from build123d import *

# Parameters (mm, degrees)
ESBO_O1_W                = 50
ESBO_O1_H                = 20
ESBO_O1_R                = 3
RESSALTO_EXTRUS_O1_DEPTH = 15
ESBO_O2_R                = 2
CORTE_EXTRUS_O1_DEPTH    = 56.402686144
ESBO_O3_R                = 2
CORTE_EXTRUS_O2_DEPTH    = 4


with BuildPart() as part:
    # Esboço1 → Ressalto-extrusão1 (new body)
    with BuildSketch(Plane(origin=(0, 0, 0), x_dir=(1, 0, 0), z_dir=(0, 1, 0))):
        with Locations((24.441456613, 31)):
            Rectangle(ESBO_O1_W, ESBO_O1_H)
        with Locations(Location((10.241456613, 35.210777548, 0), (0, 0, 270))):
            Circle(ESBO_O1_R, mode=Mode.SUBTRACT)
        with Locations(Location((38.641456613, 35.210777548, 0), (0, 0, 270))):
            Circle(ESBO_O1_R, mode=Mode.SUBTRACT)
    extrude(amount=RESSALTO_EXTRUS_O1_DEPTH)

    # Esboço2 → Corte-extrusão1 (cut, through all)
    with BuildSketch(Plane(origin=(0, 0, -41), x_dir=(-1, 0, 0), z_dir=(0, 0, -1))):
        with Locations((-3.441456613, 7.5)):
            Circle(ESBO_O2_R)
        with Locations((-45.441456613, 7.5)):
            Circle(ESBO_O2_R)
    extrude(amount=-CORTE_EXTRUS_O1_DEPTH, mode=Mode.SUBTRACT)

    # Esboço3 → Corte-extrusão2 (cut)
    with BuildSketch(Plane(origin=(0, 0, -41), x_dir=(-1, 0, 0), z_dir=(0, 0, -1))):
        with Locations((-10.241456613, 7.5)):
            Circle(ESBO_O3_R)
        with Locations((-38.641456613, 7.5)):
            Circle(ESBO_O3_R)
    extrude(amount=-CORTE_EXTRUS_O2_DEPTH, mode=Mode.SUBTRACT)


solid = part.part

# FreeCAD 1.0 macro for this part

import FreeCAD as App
import Part
import Sketcher


def add_polygon(sketch, points):
    """Adds a closed chain of lines whose ends are joined by coincident constraints."""
    first, n = sketch.GeometryCount, len(points)
    for a, b in zip(points, points[1:] + points[:1]):
        sketch.addGeometry(Part.LineSegment(App.Vector(*a, 0), App.Vector(*b, 0)), False)
    for i in range(n):
        sketch.addConstraint(Sketcher.Constraint("Coincident", first + i, 2, first + (i + 1) % n, 1))

doc = App.newDocument("Part")
params = doc.addObject("Spreadsheet::Sheet", "Params")
for row, (alias, value) in enumerate([
    ("sketch1_diameter", "6 mm"),
    ("sketch1_width", "50 mm"),
    ("sketch1_height", "20 mm"),
    ("pad1_length", "15 mm"),
    ("sketch2_diameter", "4 mm"),
    ("sketch3_diameter", "4 mm"),
    ("pocket2_length", "4 mm"),
], start=1):
    params.set(f"A{row}", alias)
    params.set(f"B{row}", "=" + value)
    params.setAlias(f"B{row}", alias)

body = doc.addObject("PartDesign::Body", "Body")

# Sketch on XZ plane
sketch1 = body.newObject("Sketcher::SketchObject", "Sketch")
sketch1.AttachmentSupport = (doc.getObject("XZ_Plane"), [""])
sketch1.MapMode = "FlatFace"
add_polygon(sketch1, [(-0.6, -41), (-0.6, -21), (49.4, -21), (49.4, -41)])  # lines 0-3
sketch1.addGeometry(Part.Circle(App.Vector(10.2, -35.2, 0), App.Vector(0, 0, 1), 3), False)  # 4
sketch1.addGeometry(Part.Circle(App.Vector(38.6, -35.2, 0), App.Vector(0, 0, 1), 3), False)  # 5
sketch1.addConstraint([
    Sketcher.Constraint("Vertical", 0),
    Sketcher.Constraint("Horizontal", 1),
    Sketcher.Constraint("Vertical", 2),
    Sketcher.Constraint("Horizontal", 3),
    Sketcher.Constraint("Equal", 4, 5),
    Sketcher.Constraint("Horizontal", 4, 3, 5, 3),
    Sketcher.Constraint("Diameter", 4, 6.0),
    Sketcher.Constraint("DistanceX", 1, 1, 1, 2, 50.0),
    Sketcher.Constraint("DistanceY", 0, 1, 0, 2, 20.0),
    Sketcher.Constraint("DistanceY", 0, 2, -1, 1, 21.0),
    Sketcher.Constraint("DistanceX", 4, 3, 5, 3, 28.4),
    Sketcher.Constraint("DistanceX", 0, 2, 4, 3, 10.8),
    Sketcher.Constraint("DistanceX", -1, 1, 4, 3, 10.241457),
    Sketcher.Constraint("DistanceY", 4, 3, -1, 1, 35.210778),
])
sketch1.setExpression("Constraints[10]", "Params.sketch1_diameter")
sketch1.setExpression("Constraints[11]", "Params.sketch1_width")
sketch1.setExpression("Constraints[12]", "Params.sketch1_height")
pad1 = body.newObject("PartDesign::Pad", "Pad")
pad1.Profile = sketch1
pad1.setExpression("Length", "Params.pad1_length")
pad1.Reversed = True

# Sketch on XY plane
sketch2 = body.newObject("Sketcher::SketchObject", "Sketch001")
sketch2.AttachmentSupport = (doc.getObject("XY_Plane"), [""])
sketch2.MapMode = "FlatFace"
sketch2.AttachmentOffset = App.Placement(App.Vector(0, 0, -41), App.Rotation())
sketch2.addGeometry([
    Part.Circle(App.Vector(3.4, 7.5, 0), App.Vector(0, 0, 1), 2),
    Part.Circle(App.Vector(45.4, 7.5, 0), App.Vector(0, 0, 1), 2),
], False)
sketch2.addConstraint([
    Sketcher.Constraint("Equal", 0, 1),
    Sketcher.Constraint("Horizontal", 0, 3, 1, 3),
    Sketcher.Constraint("Diameter", 0, 4.0),
    Sketcher.Constraint("DistanceX", 0, 3, 1, 3, 42.0),
    Sketcher.Constraint("DistanceY", -1, 1, 0, 3, 7.5),
    Sketcher.Constraint("DistanceX", -1, 1, 0, 3, 3.441457),
])
sketch2.setExpression("Constraints[2]", "Params.sketch2_diameter")
pocket1 = body.newObject("PartDesign::Pocket", "Pocket")
pocket1.Profile = sketch2
pocket1.Type = "ThroughAll"
pocket1.Reversed = True

# Sketch on XY plane
sketch3 = body.newObject("Sketcher::SketchObject", "Sketch002")
sketch3.AttachmentSupport = (doc.getObject("XY_Plane"), [""])
sketch3.MapMode = "FlatFace"
sketch3.AttachmentOffset = App.Placement(App.Vector(0, 0, -41), App.Rotation())
sketch3.addGeometry([
    Part.Circle(App.Vector(10.2, 7.5, 0), App.Vector(0, 0, 1), 2),
    Part.Circle(App.Vector(38.6, 7.5, 0), App.Vector(0, 0, 1), 2),
], False)
sketch3.addConstraint([
    Sketcher.Constraint("Equal", 0, 1),
    Sketcher.Constraint("Horizontal", 0, 3, 1, 3),
    Sketcher.Constraint("Diameter", 0, 4.0),
    Sketcher.Constraint("DistanceY", -1, 1, 0, 3, 7.5),
    Sketcher.Constraint("DistanceX", 0, 3, 1, 3, 28.4),
    Sketcher.Constraint("DistanceX", -1, 1, 0, 3, 10.241457),
])
sketch3.setExpression("Constraints[2]", "Params.sketch3_diameter")
pocket2 = body.newObject("PartDesign::Pocket", "Pocket001")
pocket2.Profile = sketch3
pocket2.setExpression("Length", "Params.pocket2_length")
pocket2.Reversed = True

doc.recompute()
